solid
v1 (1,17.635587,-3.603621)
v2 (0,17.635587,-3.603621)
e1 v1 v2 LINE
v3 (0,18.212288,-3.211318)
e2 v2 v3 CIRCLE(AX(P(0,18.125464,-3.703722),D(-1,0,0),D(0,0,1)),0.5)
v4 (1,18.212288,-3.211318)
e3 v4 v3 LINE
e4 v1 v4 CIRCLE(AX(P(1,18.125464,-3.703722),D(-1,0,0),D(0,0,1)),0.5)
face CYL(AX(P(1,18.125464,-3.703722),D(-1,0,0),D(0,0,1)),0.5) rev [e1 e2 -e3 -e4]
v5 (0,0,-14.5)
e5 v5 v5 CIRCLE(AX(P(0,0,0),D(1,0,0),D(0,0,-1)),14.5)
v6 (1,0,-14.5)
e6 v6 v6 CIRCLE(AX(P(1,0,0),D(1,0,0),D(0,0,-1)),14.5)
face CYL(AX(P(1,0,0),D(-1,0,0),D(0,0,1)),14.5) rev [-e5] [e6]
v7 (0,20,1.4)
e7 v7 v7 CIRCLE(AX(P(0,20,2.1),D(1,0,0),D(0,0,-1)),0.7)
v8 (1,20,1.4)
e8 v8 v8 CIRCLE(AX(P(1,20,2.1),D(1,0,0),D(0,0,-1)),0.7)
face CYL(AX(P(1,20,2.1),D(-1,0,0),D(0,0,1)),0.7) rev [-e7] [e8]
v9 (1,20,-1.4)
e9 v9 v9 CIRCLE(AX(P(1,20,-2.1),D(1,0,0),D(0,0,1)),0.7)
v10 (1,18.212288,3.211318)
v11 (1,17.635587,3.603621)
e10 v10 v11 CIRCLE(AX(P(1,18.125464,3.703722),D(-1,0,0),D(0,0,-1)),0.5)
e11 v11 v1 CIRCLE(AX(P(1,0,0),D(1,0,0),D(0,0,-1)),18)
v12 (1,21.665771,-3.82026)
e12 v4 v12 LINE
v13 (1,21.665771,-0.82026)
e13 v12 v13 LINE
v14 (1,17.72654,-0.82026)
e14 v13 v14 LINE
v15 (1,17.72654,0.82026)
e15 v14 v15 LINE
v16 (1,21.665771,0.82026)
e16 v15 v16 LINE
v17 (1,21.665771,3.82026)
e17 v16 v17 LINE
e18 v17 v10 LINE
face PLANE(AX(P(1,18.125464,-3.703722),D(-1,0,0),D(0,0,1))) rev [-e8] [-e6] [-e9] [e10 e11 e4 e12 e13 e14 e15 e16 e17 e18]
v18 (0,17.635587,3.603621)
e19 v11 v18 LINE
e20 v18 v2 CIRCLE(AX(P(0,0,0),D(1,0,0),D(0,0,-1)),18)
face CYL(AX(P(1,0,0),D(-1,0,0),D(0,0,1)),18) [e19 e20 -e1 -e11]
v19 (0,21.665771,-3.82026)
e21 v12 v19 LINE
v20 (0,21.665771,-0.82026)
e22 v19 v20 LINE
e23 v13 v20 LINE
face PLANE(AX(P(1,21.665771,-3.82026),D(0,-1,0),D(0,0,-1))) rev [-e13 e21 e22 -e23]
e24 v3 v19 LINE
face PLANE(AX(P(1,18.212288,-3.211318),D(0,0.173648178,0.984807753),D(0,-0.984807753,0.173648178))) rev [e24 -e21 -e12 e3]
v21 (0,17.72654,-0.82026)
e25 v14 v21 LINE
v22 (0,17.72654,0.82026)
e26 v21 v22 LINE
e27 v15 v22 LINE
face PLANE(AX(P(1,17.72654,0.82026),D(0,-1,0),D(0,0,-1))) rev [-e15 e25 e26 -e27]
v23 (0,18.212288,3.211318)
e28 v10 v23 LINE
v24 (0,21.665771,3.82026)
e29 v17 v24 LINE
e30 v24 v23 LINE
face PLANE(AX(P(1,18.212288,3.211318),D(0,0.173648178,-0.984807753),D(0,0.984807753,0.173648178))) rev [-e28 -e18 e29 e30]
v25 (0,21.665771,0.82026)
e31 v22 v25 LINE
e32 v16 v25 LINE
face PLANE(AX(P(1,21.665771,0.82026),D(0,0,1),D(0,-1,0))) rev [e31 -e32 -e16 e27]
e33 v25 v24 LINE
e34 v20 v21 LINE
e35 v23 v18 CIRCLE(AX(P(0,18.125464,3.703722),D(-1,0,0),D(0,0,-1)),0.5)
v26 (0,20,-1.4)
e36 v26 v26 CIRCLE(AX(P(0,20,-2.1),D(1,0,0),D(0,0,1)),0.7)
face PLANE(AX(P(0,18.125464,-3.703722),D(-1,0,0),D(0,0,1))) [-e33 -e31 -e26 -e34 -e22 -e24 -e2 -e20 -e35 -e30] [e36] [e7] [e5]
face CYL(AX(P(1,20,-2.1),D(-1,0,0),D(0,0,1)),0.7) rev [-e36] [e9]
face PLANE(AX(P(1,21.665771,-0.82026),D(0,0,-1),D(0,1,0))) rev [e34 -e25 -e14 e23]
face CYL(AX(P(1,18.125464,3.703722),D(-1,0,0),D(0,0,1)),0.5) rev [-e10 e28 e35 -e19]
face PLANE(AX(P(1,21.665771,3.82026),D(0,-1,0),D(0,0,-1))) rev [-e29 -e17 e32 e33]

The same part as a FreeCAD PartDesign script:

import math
import FreeCAD as App
import Part
import Sketcher

V = App.Vector
Q = App.Units.Quantity

doc = App.newDocument("Part")
body = doc.addObject("PartDesign::Body", "Body")

# Sketch on YZ plane
sketch1 = body.newObject("Sketcher::SketchObject", "Sketch")
sketch1.AttachmentSupport = (doc.getObject("YZ_Plane"), [""])
sketch1.MapMode = "FlatFace"
sketch1.addGeometry([
    Part.LineSegment(V(21.665771, 3.82026, 0), V(18.212288, 3.211318, 0)),  # 0
    Part.ArcOfCircle(Part.Circle(V(18.125464, 3.703722, 0), V(0, 0, 1), 0.5), math.radians(-168.451277), math.radians(-80)),  # 1
    Part.ArcOfCircle(Part.Circle(V(0, 0, 0), V(0, 0, 1), 18), math.radians(11.548723), math.radians(348.451277)),  # 2
    Part.ArcOfCircle(Part.Circle(V(18.125464, -3.703722, 0), V(0, 0, 1), 0.5), math.radians(80), math.radians(168.451277)),  # 3
    Part.LineSegment(V(18.212288, -3.211318, 0), V(21.665771, -3.82026, 0)),  # 4
    Part.LineSegment(V(21.665771, -3.82026, 0), V(21.665771, -0.82026, 0)),  # 5
    Part.LineSegment(V(21.665771, -0.82026, 0), V(17.72654, -0.82026, 0)),  # 6
    Part.LineSegment(V(17.72654, -0.82026, 0), V(17.72654, 0.82026, 0)),  # 7
    Part.LineSegment(V(17.72654, 0.82026, 0), V(21.665771, 0.82026, 0)),  # 8
    Part.LineSegment(V(21.665771, 0.82026, 0), V(21.665771, 3.82026, 0)),  # 9
    Part.Circle(V(0, 0, 0), V(0, 0, 1), 14.5),  # 10
    Part.Circle(V(20, -2.1, 0), V(0, 0, 1), 0.7),  # 11
    Part.Circle(V(20, 2.1, 0), V(0, 0, 1), 0.7),  # 12
], False)
sketch1.addConstraint([
    Sketcher.Constraint("Coincident", 0, 2, 1, 2),
    Sketcher.Constraint("Coincident", 1, 1, 2, 1),
    Sketcher.Constraint("Coincident", 2, 2, 3, 2),
    Sketcher.Constraint("Coincident", 3, 1, 4, 1),
    Sketcher.Constraint("Coincident", 4, 2, 5, 1),
    Sketcher.Constraint("Coincident", 5, 2, 6, 1),
    Sketcher.Constraint("Coincident", 6, 2, 7, 1),
    Sketcher.Constraint("Coincident", 7, 2, 8, 1),
    Sketcher.Constraint("Coincident", 8, 2, 9, 1),
    Sketcher.Constraint("Coincident", 9, 2, 0, 1),
    Sketcher.Constraint("Vertical", 5),
    Sketcher.Constraint("Horizontal", 6),
    Sketcher.Constraint("Vertical", 7),
    Sketcher.Constraint("Horizontal", 8),
    Sketcher.Constraint("Vertical", 9),
    Sketcher.Constraint("Coincident", 2, 3, -1, 1),
    Sketcher.Constraint("Coincident", 10, 3, -1, 1),
    Sketcher.Constraint("Diameter", 10, Q("29 mm")),
    Sketcher.Constraint("Radius", 2, Q("18 mm")),
    Sketcher.Constraint("Diameter", 11, Q("1.4 mm")),
    Sketcher.Constraint("Diameter", 12, Q("1.4 mm")),
    Sketcher.Constraint("Radius", 1, Q("0.5 mm")),
    Sketcher.Constraint("Radius", 3, Q("0.5 mm")),
    Sketcher.Constraint("DistanceY", 5, 1, 5, 2, Q("3 mm")),
    Sketcher.Constraint("DistanceY", 9, 1, 9, 2, Q("3 mm")),
    Sketcher.Constraint("DistanceX", -1, 1, 11, 3, Q("20 mm")),
    Sketcher.Constraint("DistanceX", -1, 1, 12, 3, Q("20 mm")),
    Sketcher.Constraint("DistanceY", 11, 3, -1, 1, Q("2.1 mm")),
    Sketcher.Constraint("DistanceY", -1, 1, 12, 3, Q("2.1 mm")),
    Sketcher.Constraint("DistanceX", 6, 2, 6, 1, Q("3.939231 mm")),
    Sketcher.Constraint("DistanceX", 8, 1, 8, 2, Q("3.939231 mm")),
    Sketcher.Constraint("DistanceY", 7, 1, 7, 2, Q("1.64052 mm")),
    Sketcher.Constraint("DistanceY", 1, 1, 1, 3, Q("0.100101 mm")),
    Sketcher.Constraint("DistanceX", 1, 1, 0, 2, Q("0.576701 mm")),
    Sketcher.Constraint("DistanceY", 3, 3, 2, 2, Q("0.100101 mm")),
    Sketcher.Constraint("DistanceX", 2, 2, 0, 2, Q("0.576701 mm")),
    Sketcher.Constraint("DistanceX", 2, 2, 3, 1, Q("0.576701 mm")),
    Sketcher.Constraint("DistanceY", -1, 1, 1, 3, Q("3.703722 mm")),
    Sketcher.Constraint("DistanceX", -1, 1, 4, 2, Q("21.665771 mm")),
    Sketcher.Constraint("DistanceY", 4, 2, -1, 1, Q("3.82026 mm")),
])
pad1 = body.newObject("PartDesign::Pad", "Pad")
pad1.Profile = sketch1
pad1.Length = 1

doc.recompute()
